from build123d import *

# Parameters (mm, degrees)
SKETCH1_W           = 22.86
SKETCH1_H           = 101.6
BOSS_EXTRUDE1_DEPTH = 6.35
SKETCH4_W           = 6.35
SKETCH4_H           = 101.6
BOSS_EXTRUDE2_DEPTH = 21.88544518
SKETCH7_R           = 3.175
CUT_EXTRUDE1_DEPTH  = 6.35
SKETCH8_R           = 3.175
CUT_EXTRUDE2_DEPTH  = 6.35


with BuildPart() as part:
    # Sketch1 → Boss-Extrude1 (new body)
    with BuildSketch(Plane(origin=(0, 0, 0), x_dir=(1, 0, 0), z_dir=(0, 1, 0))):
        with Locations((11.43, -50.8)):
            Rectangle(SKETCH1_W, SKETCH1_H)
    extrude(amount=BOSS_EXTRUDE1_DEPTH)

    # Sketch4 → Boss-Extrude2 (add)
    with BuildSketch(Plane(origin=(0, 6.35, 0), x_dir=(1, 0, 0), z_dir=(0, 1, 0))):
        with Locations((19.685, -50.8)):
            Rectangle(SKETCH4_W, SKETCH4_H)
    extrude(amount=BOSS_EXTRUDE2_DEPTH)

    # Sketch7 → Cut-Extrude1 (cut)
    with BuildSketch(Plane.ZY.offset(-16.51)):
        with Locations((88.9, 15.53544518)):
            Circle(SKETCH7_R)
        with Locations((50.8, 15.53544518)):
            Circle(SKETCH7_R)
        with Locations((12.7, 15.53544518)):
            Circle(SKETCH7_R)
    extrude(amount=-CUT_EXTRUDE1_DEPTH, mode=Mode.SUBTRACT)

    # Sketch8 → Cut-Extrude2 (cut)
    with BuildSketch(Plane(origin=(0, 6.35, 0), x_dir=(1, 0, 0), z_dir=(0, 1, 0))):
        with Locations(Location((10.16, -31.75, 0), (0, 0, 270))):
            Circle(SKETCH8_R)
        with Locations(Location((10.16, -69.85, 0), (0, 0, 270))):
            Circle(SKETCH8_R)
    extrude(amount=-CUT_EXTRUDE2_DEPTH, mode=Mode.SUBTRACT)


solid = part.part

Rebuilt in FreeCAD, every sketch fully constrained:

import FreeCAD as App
import Part
import Sketcher

V = App.Vector
Q = App.Units.Quantity

doc = App.newDocument("Part")
body = doc.addObject("PartDesign::Body", "Body")

# Sketch on XZ plane
sketch1 = body.newObject("Sketcher::SketchObject", "Sketch")
sketch1.AttachmentSupport = (doc.getObject("XZ_Plane"), [""])
sketch1.MapMode = "FlatFace"
sketch1.addGeometry(Part.LineSegment(V(0, 0, 0), V(0, 101.6, 0)), False)
sketch1.addGeometry(Part.LineSegment(V(0, 101.6, 0), V(22.86, 101.6, 0)), False)
sketch1.addGeometry(Part.LineSegment(V(22.86, 101.6, 0), V(22.86, 0, 0)), False)
sketch1.addGeometry(Part.LineSegment(V(22.86, 0, 0), V(0, 0, 0)), False)
sketch1.addConstraint(Sketcher.Constraint("Coincident", 0, 2, 1, 1))
sketch1.addConstraint(Sketcher.Constraint("Coincident", 1, 2, 2, 1))
sketch1.addConstraint(Sketcher.Constraint("Coincident", 2, 2, 3, 1))
sketch1.addConstraint(Sketcher.Constraint("Coincident", 3, 2, 0, 1))
sketch1.addConstraint(Sketcher.Constraint("Vertical", 0))
sketch1.addConstraint(Sketcher.Constraint("Horizontal", 1))
sketch1.addConstraint(Sketcher.Constraint("Vertical", 2))
sketch1.addConstraint(Sketcher.Constraint("Horizontal", 3))
sketch1.addConstraint(Sketcher.Constraint("Coincident", 3, 2, -1, 1))
sketch1.addConstraint(Sketcher.Constraint("DistanceY", 0, 1, 0, 2, Q("4 in")))
sketch1.addConstraint(Sketcher.Constraint("DistanceX", 1, 1, 1, 2, Q("0.9 in")))
pad1 = body.newObject("PartDesign::Pad", "Pad")
pad1.Profile = sketch1
pad1.Length = Q("0.25 in")
pad1.Reversed = True

# Sketch on XZ plane
sketch2 = body.newObject("Sketcher::SketchObject", "Sketch001")
sketch2.AttachmentSupport = (doc.getObject("XZ_Plane"), [""])
sketch2.MapMode = "FlatFace"
sketch2.AttachmentOffset = App.Placement(V(0, 0, -0.25 * 25.4), App.Rotation())
sketch2.addGeometry(Part.LineSegment(V(16.51, 0, 0), V(16.51, 101.6, 0)), False)
sketch2.addGeometry(Part.LineSegment(V(16.51, 101.6, 0), V(22.86, 101.6, 0)), False)
sketch2.addGeometry(Part.LineSegment(V(22.86, 101.6, 0), V(22.86, 0, 0)), False)
sketch2.addGeometry(Part.LineSegment(V(22.86, 0, 0), V(16.51, 0, 0)), False)
sketch2.addConstraint(Sketcher.Constraint("Coincident", 0, 2, 1, 1))
sketch2.addConstraint(Sketcher.Constraint("Coincident", 1, 2, 2, 1))
sketch2.addConstraint(Sketcher.Constraint("Coincident", 2, 2, 3, 1))
sketch2.addConstraint(Sketcher.Constraint("Coincident", 3, 2, 0, 1))
sketch2.addConstraint(Sketcher.Constraint("Vertical", 0))
sketch2.addConstraint(Sketcher.Constraint("Horizontal", 1))
sketch2.addConstraint(Sketcher.Constraint("Vertical", 2))
sketch2.addConstraint(Sketcher.Constraint("Horizontal", 3))
sketch2.addConstraint(Sketcher.Constraint("PointOnObject", 2, 2, -1))
sketch2.addConstraint(Sketcher.Constraint("DistanceY", 0, 1, 0, 2, Q("4 in")))
sketch2.addConstraint(Sketcher.Constraint("DistanceX", 1, 1, 1, 2, Q("0.25 in")))
sketch2.addConstraint(Sketcher.Constraint("DistanceX", -1, 1, 1, 2, Q("0.9 in")))
pad2 = body.newObject("PartDesign::Pad", "Pad001")
pad2.Profile = sketch2
pad2.Length = 21.885445
pad2.Reversed = True

# Sketch on YZ plane
sketch3 = body.newObject("Sketcher::SketchObject", "Sketch002")
sketch3.AttachmentSupport = (doc.getObject("YZ_Plane"), [""])
sketch3.MapMode = "FlatFace"
sketch3.AttachmentOffset = App.Placement(V(0, 0, 0.65 * 25.4), App.Rotation())
sketch3.addGeometry(Part.Circle(V(15.535445, 88.9, 0), V(0, 0, 1), 3.175), False)
sketch3.addGeometry(Part.Circle(V(15.535445, 50.8, 0), V(0, 0, 1), 3.175), False)
sketch3.addGeometry(Part.Circle(V(15.535445, 12.7, 0), V(0, 0, 1), 3.175), False)
sketch3.addConstraint(Sketcher.Constraint("Equal", 0, 1))
sketch3.addConstraint(Sketcher.Constraint("Equal", 1, 2))
sketch3.addConstraint(Sketcher.Constraint("Vertical", 0, 3, 1, 3))
sketch3.addConstraint(Sketcher.Constraint("Vertical", 1, 3, 2, 3))
sketch3.addConstraint(Sketcher.Constraint("Diameter", 0, Q("0.25 in")))
sketch3.addConstraint(Sketcher.Constraint("DistanceY", -1, 1, 1, 3, Q("2 in")))
sketch3.addConstraint(Sketcher.Constraint("DistanceY", 2, 3, 0, 3, Q("3 in")))
sketch3.addConstraint(Sketcher.Constraint("DistanceY", -1, 1, 0, 3, Q("3.5 in")))
sketch3.addConstraint(Sketcher.Constraint("DistanceX", -1, 1, 0, 3, Q("15.535445 mm")))
pocket1 = body.newObject("PartDesign::Pocket", "Pocket")
pocket1.Profile = sketch3
pocket1.Length = Q("0.25 in")
pocket1.Reversed = True

# Sketch on XZ plane
sketch4 = body.newObject("Sketcher::SketchObject", "Sketch003")
sketch4.AttachmentSupport = (doc.getObject("XZ_Plane"), [""])
sketch4.MapMode = "FlatFace"
sketch4.AttachmentOffset = App.Placement(V(0, 0, -0.25 * 25.4), App.Rotation())
sketch4.addGeometry(Part.Circle(V(10.16, 31.75, 0), V(0, 0, 1), 3.175), False)
sketch4.addGeometry(Part.Circle(V(10.16, 69.85, 0), V(0, 0, 1), 3.175), False)
sketch4.addConstraint(Sketcher.Constraint("Equal", 0, 1))
sketch4.addConstraint(Sketcher.Constraint("Vertical", 0, 3, 1, 3))
sketch4.addConstraint(Sketcher.Constraint("Diameter", 0, Q("0.25 in")))
sketch4.addConstraint(Sketcher.Constraint("DistanceX", -1, 1, 0, 3, Q("0.4 in")))
sketch4.addConstraint(Sketcher.Constraint("DistanceY", 0, 3, 1, 3, Q("1.5 in")))
sketch4.addConstraint(Sketcher.Constraint("DistanceY", -1, 1, 0, 3, Q("1.25 in")))
pocket2 = body.newObject("PartDesign::Pocket", "Pocket001")
pocket2.Profile = sketch4
pocket2.Length = Q("0.25 in")
pocket2.Reversed = True

doc.recompute()
